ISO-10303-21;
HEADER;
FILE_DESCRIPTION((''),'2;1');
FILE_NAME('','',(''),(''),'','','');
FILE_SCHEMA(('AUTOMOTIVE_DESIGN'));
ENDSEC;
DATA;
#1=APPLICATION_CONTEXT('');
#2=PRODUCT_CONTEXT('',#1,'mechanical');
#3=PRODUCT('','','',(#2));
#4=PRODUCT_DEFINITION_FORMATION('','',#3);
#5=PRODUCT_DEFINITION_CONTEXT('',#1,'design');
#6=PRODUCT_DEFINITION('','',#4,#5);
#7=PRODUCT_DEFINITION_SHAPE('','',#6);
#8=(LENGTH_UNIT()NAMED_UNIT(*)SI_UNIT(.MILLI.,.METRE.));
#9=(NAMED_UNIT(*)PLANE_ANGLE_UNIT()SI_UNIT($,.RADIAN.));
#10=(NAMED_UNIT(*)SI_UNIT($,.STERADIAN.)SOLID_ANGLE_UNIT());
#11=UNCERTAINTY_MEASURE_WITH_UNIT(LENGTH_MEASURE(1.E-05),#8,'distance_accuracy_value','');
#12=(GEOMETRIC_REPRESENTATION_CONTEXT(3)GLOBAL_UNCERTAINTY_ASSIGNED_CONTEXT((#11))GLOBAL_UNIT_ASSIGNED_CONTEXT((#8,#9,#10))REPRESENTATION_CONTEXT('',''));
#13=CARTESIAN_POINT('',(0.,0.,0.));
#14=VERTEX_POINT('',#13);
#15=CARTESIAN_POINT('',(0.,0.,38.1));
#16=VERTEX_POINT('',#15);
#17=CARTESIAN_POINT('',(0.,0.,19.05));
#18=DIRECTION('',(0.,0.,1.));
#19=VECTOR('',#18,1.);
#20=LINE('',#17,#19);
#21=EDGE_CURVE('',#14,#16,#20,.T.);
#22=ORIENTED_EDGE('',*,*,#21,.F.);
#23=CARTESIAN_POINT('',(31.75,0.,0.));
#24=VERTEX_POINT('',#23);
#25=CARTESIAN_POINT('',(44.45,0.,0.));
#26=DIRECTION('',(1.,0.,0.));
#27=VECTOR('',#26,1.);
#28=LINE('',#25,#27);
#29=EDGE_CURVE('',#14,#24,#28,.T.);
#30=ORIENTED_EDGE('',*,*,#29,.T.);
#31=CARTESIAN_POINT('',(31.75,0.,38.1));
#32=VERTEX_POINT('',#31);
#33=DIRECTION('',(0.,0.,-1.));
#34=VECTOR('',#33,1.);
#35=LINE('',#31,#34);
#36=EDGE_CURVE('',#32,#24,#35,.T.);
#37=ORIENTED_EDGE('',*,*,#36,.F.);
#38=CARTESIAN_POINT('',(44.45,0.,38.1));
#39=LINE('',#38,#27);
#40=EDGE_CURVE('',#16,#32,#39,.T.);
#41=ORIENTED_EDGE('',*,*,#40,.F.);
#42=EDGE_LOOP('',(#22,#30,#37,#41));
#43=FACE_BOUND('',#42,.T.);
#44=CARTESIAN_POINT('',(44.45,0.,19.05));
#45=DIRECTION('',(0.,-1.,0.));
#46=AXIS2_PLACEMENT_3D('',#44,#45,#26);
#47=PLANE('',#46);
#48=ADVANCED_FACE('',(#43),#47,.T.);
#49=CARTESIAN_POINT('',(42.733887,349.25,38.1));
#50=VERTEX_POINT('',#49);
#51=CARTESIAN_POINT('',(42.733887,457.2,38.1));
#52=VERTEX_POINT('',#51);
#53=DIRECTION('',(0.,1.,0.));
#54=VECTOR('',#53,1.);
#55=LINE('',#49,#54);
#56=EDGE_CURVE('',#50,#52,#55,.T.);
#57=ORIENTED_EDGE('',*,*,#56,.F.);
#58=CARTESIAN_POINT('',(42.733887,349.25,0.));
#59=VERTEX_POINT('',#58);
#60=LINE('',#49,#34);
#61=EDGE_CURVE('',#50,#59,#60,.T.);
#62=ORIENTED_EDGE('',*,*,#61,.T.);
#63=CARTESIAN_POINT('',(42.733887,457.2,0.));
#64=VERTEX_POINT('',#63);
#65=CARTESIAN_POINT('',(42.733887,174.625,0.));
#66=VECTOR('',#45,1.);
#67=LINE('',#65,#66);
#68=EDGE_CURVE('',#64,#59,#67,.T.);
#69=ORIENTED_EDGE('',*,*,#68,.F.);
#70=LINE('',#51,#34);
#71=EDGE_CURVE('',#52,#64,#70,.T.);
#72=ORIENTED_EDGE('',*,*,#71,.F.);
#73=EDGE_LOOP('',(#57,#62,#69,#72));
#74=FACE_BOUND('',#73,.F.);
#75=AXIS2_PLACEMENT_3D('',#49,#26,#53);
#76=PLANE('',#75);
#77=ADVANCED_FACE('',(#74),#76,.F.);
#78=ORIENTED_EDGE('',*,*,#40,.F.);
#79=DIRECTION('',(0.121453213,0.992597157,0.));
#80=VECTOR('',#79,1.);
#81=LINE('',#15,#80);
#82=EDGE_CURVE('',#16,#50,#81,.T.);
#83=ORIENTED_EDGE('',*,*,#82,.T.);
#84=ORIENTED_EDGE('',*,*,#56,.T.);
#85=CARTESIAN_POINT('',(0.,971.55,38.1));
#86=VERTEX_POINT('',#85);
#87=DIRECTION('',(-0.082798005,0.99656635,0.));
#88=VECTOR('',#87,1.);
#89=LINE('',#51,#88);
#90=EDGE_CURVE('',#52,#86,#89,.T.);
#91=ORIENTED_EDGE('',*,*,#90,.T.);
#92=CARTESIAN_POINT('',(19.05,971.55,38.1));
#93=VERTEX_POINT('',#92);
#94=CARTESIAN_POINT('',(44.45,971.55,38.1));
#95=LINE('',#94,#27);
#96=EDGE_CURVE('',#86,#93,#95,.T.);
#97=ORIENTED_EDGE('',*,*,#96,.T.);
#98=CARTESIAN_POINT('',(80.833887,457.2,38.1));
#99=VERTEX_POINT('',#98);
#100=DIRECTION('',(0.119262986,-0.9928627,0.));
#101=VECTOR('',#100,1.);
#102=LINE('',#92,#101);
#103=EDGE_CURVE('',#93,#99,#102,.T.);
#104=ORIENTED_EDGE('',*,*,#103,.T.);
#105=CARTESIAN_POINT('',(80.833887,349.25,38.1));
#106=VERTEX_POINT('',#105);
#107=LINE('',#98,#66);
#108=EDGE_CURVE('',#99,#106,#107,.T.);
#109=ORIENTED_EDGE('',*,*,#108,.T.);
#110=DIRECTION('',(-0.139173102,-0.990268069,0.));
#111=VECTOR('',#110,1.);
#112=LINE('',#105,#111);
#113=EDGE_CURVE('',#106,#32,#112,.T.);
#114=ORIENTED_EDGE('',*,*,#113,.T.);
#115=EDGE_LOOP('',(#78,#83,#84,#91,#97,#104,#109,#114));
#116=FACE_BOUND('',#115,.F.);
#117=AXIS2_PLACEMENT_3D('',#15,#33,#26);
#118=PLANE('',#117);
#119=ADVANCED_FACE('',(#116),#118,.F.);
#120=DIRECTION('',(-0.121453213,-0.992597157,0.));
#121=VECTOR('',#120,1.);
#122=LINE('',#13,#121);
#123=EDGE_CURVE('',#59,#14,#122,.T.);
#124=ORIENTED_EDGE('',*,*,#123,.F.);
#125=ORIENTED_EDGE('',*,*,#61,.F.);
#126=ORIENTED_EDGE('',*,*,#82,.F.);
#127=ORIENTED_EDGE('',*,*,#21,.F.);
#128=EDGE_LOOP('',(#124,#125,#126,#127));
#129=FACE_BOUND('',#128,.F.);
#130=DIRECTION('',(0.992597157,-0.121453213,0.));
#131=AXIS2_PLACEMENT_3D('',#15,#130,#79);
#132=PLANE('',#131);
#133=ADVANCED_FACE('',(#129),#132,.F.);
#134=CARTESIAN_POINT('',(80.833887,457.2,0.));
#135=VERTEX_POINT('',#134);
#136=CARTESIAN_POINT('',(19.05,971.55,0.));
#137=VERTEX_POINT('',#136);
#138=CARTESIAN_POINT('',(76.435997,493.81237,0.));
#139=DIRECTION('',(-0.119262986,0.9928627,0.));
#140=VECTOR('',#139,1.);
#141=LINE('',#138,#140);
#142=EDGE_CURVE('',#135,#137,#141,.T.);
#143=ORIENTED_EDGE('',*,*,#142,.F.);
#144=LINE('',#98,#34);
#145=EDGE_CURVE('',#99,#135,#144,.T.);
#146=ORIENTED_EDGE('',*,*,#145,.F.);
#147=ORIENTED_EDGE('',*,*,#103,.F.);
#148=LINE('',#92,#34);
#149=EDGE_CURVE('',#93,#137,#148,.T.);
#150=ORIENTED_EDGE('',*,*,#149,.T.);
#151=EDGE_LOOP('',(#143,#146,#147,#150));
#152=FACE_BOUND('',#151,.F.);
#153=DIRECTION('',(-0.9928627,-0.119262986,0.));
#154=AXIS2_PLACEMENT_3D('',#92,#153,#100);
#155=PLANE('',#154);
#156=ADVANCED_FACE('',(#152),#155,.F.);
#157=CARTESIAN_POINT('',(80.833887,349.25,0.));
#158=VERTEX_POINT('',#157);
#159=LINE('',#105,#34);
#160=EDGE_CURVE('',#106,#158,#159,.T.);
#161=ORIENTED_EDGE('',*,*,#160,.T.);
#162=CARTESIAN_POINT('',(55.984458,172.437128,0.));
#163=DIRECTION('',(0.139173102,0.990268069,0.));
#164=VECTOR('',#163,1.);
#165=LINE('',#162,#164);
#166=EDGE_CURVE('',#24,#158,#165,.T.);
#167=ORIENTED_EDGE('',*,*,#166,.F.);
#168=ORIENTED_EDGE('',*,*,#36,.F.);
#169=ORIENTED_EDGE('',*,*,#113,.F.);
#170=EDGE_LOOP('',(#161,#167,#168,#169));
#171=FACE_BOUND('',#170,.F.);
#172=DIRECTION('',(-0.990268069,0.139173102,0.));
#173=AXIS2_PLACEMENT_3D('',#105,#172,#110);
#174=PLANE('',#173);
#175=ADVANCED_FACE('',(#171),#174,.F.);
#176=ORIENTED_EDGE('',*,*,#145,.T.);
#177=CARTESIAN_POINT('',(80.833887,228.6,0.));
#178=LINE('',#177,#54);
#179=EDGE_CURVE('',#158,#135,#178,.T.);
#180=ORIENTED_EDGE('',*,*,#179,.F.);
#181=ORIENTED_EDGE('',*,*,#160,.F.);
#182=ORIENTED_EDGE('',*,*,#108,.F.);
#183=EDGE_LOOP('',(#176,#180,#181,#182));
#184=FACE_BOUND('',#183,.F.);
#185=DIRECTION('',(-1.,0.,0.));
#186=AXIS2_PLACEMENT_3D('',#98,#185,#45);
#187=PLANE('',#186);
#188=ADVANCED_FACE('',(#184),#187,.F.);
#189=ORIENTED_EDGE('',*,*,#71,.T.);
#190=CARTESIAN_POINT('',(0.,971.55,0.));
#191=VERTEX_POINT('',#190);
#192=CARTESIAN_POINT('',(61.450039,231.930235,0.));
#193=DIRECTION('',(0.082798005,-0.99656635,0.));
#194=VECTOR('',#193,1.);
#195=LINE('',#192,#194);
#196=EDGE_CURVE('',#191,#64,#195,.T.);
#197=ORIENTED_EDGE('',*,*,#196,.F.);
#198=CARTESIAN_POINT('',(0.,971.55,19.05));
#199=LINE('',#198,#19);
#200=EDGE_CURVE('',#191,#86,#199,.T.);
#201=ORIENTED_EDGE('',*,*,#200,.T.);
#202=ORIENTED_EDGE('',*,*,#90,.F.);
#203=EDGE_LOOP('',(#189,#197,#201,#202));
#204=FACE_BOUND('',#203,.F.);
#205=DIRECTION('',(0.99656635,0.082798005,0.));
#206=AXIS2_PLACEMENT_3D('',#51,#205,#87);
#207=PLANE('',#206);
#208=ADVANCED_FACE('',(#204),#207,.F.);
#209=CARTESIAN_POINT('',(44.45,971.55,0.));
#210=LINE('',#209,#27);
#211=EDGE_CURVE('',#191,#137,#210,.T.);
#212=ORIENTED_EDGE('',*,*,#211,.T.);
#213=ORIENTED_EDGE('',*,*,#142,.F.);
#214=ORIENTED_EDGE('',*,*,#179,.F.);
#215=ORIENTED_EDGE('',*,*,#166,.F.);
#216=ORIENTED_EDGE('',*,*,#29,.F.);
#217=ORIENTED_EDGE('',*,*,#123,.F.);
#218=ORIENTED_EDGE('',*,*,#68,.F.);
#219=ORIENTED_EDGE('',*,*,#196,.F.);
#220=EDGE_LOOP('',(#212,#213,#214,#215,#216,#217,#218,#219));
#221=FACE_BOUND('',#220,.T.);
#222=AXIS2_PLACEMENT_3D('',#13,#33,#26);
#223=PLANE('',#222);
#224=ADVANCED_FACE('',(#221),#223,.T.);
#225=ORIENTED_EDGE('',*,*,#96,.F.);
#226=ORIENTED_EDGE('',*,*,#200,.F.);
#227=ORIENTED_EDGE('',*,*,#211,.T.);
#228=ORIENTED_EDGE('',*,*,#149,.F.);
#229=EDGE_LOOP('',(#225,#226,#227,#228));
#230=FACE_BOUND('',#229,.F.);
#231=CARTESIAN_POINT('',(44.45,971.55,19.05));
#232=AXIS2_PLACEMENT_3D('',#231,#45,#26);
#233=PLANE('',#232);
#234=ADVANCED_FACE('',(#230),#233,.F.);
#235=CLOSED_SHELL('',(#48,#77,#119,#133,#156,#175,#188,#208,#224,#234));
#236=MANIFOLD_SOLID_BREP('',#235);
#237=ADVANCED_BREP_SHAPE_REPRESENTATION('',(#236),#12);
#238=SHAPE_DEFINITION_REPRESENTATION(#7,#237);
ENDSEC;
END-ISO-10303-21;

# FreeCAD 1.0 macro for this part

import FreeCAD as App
import Part
import Sketcher
from FreeCAD import Vector
Q = App.Units.Quantity


def add_polygon(sketch, points):
    """Adds a closed chain of lines whose ends are joined by coincident constraints."""
    first, n = sketch.GeometryCount, len(points)
    for a, b in zip(points, points[1:] + points[:1]):
        sketch.addGeometry(Part.LineSegment(App.Vector(*a, 0), App.Vector(*b, 0)), False)
    for i in range(n):
        sketch.addConstraint(Sketcher.Constraint("Coincident", first + i, 2, first + (i + 1) % n, 1))

doc = App.newDocument("Part")
body = doc.addObject("PartDesign::Body", "Body")

sketch1 = body.newObject("Sketcher::SketchObject", "Sketch")
sketch1.AttachmentSupport = (doc.getObject("XZ_Plane"), [""])
sketch1.MapMode = "FlatFace"
add_polygon(sketch1, [(0, 38), (0, 0), (89, 0), (89, 38)])
sketch1.addConstraint(Sketcher.Constraint("Vertical", 0))
sketch1.addConstraint(Sketcher.Constraint("Horizontal", 1))
sketch1.addConstraint(Sketcher.Constraint("Vertical", 2))
sketch1.addConstraint(Sketcher.Constraint("Horizontal", 3))
sketch1.addConstraint(Sketcher.Constraint("Coincident", 0, 2, -1, 1))
sketch1.addConstraint(Sketcher.Constraint("DistanceX", 1, 1, 1, 2, Q("3.5 in")))
sketch1.addConstraint(Sketcher.Constraint("DistanceY", 0, 2, 0, 1, Q("1.5 in")))
pad1 = body.newObject("PartDesign::Pad", "Pad")
pad1.Profile = sketch1
pad1.Length = Q("38.25 in")
pad1.Reversed = True

sketch2 = body.newObject("Sketcher::SketchObject", "Sketch001")
sketch2.AttachmentSupport = (doc.getObject("XY_Plane"), [""])
sketch2.MapMode = "FlatFace"
sketch2.AttachmentOffset = App.Placement(Vector(0, 0, 1.5 * 25.4), App.Rotation())
add_polygon(sketch2, [(0, 972), (0, 0), (43, 349), (43, 457)])
add_polygon(sketch2, [(81, 457), (81, 349), (32, 0), (89, 0), (89, 972), (19, 972)])
sketch2.addConstraint(Sketcher.Constraint("Vertical", 0))
sketch2.addConstraint(Sketcher.Constraint("Vertical", 2))
sketch2.addConstraint(Sketcher.Constraint("Vertical", 4))
sketch2.addConstraint(Sketcher.Constraint("Horizontal", 6))
sketch2.addConstraint(Sketcher.Constraint("Vertical", 7))
sketch2.addConstraint(Sketcher.Constraint("Horizontal", 8))
sketch2.addConstraint(Sketcher.Constraint("Coincident", 0, 2, -1, 1))
sketch2.addConstraint(Sketcher.Constraint("PointOnObject", 5, 2, -1))
sketch2.addConstraint(Sketcher.Constraint("Horizontal", 1, 2, 4, 2))
sketch2.addConstraint(Sketcher.Constraint("Horizontal", 3, 2, 7, 2))
sketch2.addConstraint(Sketcher.Constraint("Horizontal", 2, 2, 9, 2))
sketch2.addConstraint(Sketcher.Constraint("DistanceY", -1, 1, 2, 2, Q("18 in")))
sketch2.addConstraint(Sketcher.Constraint("Angle", 5, Q("-98 deg")))
sketch2.addConstraint(Sketcher.Constraint("DistanceX", 6, 1, 6, 2, Q("2.25 in")))
sketch2.addConstraint(Sketcher.Constraint("DistanceX", 8, 2, 8, 1, Q("2.75 in")))
sketch2.addConstraint(Sketcher.Constraint("DistanceY", 0, 2, 0, 1, Q("38.25 in")))
sketch2.addConstraint(Sketcher.Constraint("DistanceY", 2, 1, 2, 2, Q("4.25 in")))
sketch2.addConstraint(Sketcher.Constraint("DistanceX", -1, 1, 6, 2, Q("3.5 in")))
sketch2.addConstraint(Sketcher.Constraint("DistanceX", 1, 2, 4, 2, Q("1.5 in")))
pocket1 = body.newObject("PartDesign::Pocket", "Pocket")
pocket1.Profile = sketch2
pocket1.Type = "ThroughAll"

doc.recompute()
